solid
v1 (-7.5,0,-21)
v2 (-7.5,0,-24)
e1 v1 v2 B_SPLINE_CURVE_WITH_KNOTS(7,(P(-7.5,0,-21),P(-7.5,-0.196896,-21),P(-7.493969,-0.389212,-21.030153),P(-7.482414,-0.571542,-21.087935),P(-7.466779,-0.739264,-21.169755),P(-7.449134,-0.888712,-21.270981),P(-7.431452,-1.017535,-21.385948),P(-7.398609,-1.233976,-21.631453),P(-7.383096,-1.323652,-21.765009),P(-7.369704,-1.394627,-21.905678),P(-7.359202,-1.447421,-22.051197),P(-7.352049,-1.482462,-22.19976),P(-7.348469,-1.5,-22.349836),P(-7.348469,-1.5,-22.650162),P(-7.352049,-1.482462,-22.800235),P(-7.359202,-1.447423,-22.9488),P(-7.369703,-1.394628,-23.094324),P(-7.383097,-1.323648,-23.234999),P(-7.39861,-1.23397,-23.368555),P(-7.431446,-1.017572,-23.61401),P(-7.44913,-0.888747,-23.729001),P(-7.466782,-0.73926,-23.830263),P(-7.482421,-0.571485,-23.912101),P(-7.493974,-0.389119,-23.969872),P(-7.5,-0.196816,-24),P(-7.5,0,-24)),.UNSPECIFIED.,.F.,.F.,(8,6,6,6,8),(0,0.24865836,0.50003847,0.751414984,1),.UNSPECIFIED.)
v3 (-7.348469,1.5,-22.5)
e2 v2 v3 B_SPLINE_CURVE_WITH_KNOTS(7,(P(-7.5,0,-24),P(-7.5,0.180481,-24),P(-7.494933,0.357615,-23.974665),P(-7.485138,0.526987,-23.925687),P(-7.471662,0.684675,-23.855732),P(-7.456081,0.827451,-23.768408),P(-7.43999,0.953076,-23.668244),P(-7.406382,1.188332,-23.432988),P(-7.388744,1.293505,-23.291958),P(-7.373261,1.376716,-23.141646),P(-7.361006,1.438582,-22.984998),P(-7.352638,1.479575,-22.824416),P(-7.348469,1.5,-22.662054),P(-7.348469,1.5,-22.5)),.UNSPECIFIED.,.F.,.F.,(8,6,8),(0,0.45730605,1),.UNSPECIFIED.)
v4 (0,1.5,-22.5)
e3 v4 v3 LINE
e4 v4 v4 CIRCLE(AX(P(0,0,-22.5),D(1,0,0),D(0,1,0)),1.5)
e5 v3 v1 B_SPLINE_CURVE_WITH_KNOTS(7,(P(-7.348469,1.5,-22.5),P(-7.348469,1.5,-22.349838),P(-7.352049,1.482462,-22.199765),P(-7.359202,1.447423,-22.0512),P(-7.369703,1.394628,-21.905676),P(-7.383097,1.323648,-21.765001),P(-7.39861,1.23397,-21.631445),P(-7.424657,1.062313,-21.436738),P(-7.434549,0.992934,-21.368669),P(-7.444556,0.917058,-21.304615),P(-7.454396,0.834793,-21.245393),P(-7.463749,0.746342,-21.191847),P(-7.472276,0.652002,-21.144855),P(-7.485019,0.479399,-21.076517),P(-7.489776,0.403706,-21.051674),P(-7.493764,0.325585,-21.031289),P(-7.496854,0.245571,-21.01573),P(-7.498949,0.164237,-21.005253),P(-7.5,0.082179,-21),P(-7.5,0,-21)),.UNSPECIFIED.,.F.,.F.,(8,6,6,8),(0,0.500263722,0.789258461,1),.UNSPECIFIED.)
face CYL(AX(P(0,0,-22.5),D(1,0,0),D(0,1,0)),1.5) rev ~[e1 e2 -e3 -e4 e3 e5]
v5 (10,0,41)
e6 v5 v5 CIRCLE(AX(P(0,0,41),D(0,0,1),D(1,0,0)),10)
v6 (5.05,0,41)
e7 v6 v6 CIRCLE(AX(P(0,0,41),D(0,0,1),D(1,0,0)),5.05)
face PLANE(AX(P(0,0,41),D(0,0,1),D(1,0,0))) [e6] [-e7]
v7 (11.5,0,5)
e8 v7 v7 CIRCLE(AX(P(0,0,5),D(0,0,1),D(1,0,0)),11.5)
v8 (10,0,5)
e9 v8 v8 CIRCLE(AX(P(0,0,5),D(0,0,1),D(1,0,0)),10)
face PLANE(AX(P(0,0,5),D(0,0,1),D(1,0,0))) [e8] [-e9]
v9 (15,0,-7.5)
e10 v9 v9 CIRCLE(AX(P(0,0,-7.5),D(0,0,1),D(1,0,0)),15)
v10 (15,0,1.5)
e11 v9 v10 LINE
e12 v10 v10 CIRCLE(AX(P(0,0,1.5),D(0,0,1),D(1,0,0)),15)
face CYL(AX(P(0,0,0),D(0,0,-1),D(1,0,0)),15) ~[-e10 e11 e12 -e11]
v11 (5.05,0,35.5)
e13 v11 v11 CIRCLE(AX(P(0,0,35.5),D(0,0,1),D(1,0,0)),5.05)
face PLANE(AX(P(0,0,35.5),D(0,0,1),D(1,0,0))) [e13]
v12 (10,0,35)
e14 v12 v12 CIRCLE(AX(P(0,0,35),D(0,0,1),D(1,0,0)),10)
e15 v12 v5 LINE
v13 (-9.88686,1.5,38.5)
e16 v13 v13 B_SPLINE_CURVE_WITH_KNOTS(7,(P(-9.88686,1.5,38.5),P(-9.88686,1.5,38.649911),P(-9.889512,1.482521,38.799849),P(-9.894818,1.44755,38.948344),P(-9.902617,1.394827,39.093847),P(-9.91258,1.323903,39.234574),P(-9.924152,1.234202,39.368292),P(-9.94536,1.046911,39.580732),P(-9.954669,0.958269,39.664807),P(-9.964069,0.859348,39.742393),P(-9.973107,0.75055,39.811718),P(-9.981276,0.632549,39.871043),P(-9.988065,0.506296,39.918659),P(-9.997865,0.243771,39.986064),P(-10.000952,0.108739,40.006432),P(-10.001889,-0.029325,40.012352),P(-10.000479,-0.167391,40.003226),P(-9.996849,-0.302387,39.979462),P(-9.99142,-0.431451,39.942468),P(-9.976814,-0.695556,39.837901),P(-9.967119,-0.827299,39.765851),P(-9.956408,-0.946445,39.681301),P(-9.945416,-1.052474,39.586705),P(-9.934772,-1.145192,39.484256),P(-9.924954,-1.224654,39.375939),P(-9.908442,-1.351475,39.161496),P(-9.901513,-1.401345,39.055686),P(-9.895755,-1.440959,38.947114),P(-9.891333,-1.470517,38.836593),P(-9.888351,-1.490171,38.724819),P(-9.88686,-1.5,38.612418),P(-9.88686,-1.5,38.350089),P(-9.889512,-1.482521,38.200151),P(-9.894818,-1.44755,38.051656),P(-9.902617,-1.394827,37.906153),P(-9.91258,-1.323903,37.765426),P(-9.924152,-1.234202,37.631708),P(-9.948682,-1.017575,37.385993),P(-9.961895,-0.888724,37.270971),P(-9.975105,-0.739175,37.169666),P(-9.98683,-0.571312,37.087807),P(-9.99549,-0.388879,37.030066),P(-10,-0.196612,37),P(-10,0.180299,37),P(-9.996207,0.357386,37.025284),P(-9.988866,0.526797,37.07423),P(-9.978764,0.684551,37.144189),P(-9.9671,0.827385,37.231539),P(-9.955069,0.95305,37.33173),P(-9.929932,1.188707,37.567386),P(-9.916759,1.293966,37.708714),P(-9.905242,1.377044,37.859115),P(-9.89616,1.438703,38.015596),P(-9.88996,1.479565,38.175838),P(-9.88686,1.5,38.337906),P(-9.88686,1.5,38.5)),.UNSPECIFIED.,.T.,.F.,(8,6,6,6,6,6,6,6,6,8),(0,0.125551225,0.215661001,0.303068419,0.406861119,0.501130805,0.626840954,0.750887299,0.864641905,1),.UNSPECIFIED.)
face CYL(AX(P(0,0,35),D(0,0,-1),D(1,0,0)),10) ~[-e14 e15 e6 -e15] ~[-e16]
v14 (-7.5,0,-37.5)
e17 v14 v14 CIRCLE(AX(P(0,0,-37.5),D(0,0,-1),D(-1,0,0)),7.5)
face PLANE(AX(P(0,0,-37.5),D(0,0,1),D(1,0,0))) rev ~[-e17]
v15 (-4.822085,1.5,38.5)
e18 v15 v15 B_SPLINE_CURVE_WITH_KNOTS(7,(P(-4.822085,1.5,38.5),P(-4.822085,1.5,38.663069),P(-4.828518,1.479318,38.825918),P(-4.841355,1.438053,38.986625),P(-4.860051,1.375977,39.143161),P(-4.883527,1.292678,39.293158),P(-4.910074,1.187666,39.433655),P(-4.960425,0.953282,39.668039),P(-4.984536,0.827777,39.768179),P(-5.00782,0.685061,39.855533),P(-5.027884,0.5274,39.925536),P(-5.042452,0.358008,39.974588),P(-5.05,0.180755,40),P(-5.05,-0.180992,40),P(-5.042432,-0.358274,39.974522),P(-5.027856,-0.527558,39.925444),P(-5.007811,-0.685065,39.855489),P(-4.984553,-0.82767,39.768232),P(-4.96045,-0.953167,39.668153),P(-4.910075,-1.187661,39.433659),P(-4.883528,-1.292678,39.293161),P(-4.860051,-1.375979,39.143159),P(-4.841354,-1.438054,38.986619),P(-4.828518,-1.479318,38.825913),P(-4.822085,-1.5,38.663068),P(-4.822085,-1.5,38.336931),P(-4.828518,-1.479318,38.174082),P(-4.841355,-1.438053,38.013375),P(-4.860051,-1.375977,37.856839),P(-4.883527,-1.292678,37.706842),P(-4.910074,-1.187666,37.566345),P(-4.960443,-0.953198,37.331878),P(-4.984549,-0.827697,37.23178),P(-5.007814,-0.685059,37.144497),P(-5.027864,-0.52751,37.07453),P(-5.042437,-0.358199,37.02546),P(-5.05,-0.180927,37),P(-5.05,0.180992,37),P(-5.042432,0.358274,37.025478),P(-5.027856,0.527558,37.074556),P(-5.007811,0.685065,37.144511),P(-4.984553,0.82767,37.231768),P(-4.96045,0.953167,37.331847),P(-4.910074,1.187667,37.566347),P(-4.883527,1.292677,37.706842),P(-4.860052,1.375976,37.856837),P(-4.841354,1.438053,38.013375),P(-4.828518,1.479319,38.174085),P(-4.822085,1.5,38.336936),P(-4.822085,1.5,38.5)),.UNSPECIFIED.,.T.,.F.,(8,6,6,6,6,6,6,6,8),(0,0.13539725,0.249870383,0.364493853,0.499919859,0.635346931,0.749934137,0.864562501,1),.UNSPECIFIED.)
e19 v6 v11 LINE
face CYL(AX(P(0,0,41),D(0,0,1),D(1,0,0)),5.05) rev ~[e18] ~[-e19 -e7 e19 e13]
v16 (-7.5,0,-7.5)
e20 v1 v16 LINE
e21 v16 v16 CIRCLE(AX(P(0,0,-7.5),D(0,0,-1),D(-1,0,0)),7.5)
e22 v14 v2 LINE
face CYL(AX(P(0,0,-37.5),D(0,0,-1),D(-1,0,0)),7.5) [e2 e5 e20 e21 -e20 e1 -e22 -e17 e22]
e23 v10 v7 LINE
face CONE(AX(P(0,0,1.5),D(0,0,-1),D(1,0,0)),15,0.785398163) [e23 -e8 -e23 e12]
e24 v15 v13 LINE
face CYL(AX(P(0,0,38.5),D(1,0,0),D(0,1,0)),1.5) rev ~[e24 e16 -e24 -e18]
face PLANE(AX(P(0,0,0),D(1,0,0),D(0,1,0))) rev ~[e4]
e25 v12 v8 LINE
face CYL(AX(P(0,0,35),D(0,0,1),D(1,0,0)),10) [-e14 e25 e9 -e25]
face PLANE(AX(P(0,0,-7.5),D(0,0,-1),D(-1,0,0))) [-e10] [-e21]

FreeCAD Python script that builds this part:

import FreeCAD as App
import Part
import Sketcher
from FreeCAD import Vector


def edges_at(feature, points):
    """Names of the edges that pass closest to the given points."""
    edges = feature.Shape.Edges
    near = lambda p: min(range(len(edges)), key=lambda i: edges[i].distToShape(Part.Vertex(*p))[0])
    return sorted({f"Edge{near(p) + 1}" for p in points})

doc = App.newDocument("Part")
body = doc.addObject("PartDesign::Body", "Body")

# Sketch on XY plane
sketch1 = body.newObject("Sketcher::SketchObject", "Sketch")
sketch1.AttachmentSupport = (doc.getObject("XY_Plane"), [""])
sketch1.MapMode = "FlatFace"
sketch1.addGeometry(Part.Circle(Vector(0, 0, 0), Vector(0, 0, 1), 15), False)
sketch1.addConstraint(Sketcher.Constraint("Coincident", 0, 3, -1, 1))
sketch1.addConstraint(Sketcher.Constraint("Diameter", 0, 30.0))
pad1 = body.newObject("PartDesign::Pad", "Pad")
pad1.Profile = sketch1
pad1.Type = "TwoLengths"
pad1.Length = 35
pad1.Length2 = 37.5

# Sketch on XY plane
sketch2 = body.newObject("Sketcher::SketchObject", "Sketch001")
sketch2.AttachmentSupport = (doc.getObject("XY_Plane"), [""])
sketch2.MapMode = "FlatFace"
sketch2.AttachmentOffset = App.Placement(Vector(0, 0, 35), App.Rotation())
sketch2.addGeometry(Part.Circle(Vector(0, 0, 0), Vector(0, 0, 1), 15), False)
sketch2.addGeometry(Part.Circle(Vector(0, 0, 0), Vector(0, 0, 1), 10), False)
sketch2.addConstraint(Sketcher.Constraint("Coincident", 0, 3, -1, 1))
sketch2.addConstraint(Sketcher.Constraint("Coincident", 1, 3, -1, 1))
sketch2.addConstraint(Sketcher.Constraint("Diameter", 0, 30.0))
sketch2.addConstraint(Sketcher.Constraint("Diameter", 1, 20.0))
pocket1 = body.newObject("PartDesign::Pocket", "Pocket")
pocket1.Profile = sketch2
pocket1.Length = 30
doc.recompute()

chamfer = body.newObject("PartDesign::Chamfer", "Chamfer")
chamfer.Base = (pocket1, edges_at(pocket1, [(-15, 0, 5)]))
chamfer.Size = 3.5

# Sketch on XY plane
sketch3 = body.newObject("Sketcher::SketchObject", "Sketch002")
sketch3.AttachmentSupport = (doc.getObject("XY_Plane"), [""])
sketch3.MapMode = "FlatFace"
sketch3.AttachmentOffset = App.Placement(Vector(0, 0, -37.5), App.Rotation())
sketch3.addGeometry(Part.Circle(Vector(0, 0, 0), Vector(0, 0, 1), 15), False)
sketch3.addGeometry(Part.Circle(Vector(0, 0, 0), Vector(0, 0, 1), 8), False)
sketch3.addConstraint(Sketcher.Constraint("Coincident", 0, 3, -1, 1))
sketch3.addConstraint(Sketcher.Constraint("Coincident", 1, 3, -1, 1))
sketch3.addConstraint(Sketcher.Constraint("Diameter", 0, 30.0))
sketch3.addConstraint(Sketcher.Constraint("Diameter", 1, 15.0))
pocket2 = body.newObject("PartDesign::Pocket", "Pocket001")
pocket2.Profile = sketch3
pocket2.Length = 30
pocket2.Reversed = True

# Sketch on XY plane
sketch4 = body.newObject("Sketcher::SketchObject", "Sketch003")
sketch4.AttachmentSupport = (doc.getObject("XY_Plane"), [""])
sketch4.MapMode = "FlatFace"
sketch4.AttachmentOffset = App.Placement(Vector(0, 0, 35), App.Rotation())
sketch4.addGeometry(Part.Circle(Vector(0, 0, 0), Vector(0, 0, 1), 10), False)
sketch4.addConstraint(Sketcher.Constraint("Coincident", 0, 3, -1, 1))
sketch4.addConstraint(Sketcher.Constraint("Diameter", 0, 20.0))
pad2 = body.newObject("PartDesign::Pad", "Pad001")
pad2.Profile = sketch4
pad2.Length = 6

# Sketch on XY plane
sketch5 = body.newObject("Sketcher::SketchObject", "Sketch004")
sketch5.AttachmentSupport = (doc.getObject("XY_Plane"), [""])
sketch5.MapMode = "FlatFace"
sketch5.AttachmentOffset = App.Placement(Vector(0, 0, 41), App.Rotation())
sketch5.addGeometry(Part.Circle(Vector(0, 0, 0), Vector(0, 0, 1), 5), False)
sketch5.addConstraint(Sketcher.Constraint("Coincident", 0, 3, -1, 1))
sketch5.addConstraint(Sketcher.Constraint("Diameter", 0, 10.1))
pocket3 = body.newObject("PartDesign::Pocket", "Pocket002")
pocket3.Profile = sketch5
pocket3.Length = 5.5

# Sketch on YZ plane
sketch6 = body.newObject("Sketcher::SketchObject", "Sketch005")
sketch6.AttachmentSupport = (doc.getObject("YZ_Plane"), [""])
sketch6.MapMode = "FlatFace"
sketch6.addGeometry(Part.Circle(Vector(0, 38.5, 0), Vector(0, 0, 1), 1.5), False)
sketch6.addConstraint(Sketcher.Constraint("PointOnObject", 0, 3, -2))
sketch6.addConstraint(Sketcher.Constraint("Diameter", 0, 3.0))
sketch6.addConstraint(Sketcher.Constraint("DistanceY", -1, 1, 0, 3, 38.5))
pocket4 = body.newObject("PartDesign::Pocket", "Pocket003")
pocket4.Profile = sketch6
pocket4.Length = 25

# Sketch on YZ plane
sketch7 = body.newObject("Sketcher::SketchObject", "Sketch006")
sketch7.AttachmentSupport = (doc.getObject("YZ_Plane"), [""])
sketch7.MapMode = "FlatFace"
sketch7.addGeometry(Part.Circle(Vector(0, -22.5, 0), Vector(0, 0, 1), 1.5), False)
sketch7.addConstraint(Sketcher.Constraint("PointOnObject", 0, 3, -2))
sketch7.addConstraint(Sketcher.Constraint("Diameter", 0, 3.0))
sketch7.addConstraint(Sketcher.Constraint("DistanceY", 0, 3, -1, 1, 22.5))
pocket5 = body.newObject("PartDesign::Pocket", "Pocket004")
pocket5.Profile = sketch7
pocket5.Length = 20

doc.recompute()
